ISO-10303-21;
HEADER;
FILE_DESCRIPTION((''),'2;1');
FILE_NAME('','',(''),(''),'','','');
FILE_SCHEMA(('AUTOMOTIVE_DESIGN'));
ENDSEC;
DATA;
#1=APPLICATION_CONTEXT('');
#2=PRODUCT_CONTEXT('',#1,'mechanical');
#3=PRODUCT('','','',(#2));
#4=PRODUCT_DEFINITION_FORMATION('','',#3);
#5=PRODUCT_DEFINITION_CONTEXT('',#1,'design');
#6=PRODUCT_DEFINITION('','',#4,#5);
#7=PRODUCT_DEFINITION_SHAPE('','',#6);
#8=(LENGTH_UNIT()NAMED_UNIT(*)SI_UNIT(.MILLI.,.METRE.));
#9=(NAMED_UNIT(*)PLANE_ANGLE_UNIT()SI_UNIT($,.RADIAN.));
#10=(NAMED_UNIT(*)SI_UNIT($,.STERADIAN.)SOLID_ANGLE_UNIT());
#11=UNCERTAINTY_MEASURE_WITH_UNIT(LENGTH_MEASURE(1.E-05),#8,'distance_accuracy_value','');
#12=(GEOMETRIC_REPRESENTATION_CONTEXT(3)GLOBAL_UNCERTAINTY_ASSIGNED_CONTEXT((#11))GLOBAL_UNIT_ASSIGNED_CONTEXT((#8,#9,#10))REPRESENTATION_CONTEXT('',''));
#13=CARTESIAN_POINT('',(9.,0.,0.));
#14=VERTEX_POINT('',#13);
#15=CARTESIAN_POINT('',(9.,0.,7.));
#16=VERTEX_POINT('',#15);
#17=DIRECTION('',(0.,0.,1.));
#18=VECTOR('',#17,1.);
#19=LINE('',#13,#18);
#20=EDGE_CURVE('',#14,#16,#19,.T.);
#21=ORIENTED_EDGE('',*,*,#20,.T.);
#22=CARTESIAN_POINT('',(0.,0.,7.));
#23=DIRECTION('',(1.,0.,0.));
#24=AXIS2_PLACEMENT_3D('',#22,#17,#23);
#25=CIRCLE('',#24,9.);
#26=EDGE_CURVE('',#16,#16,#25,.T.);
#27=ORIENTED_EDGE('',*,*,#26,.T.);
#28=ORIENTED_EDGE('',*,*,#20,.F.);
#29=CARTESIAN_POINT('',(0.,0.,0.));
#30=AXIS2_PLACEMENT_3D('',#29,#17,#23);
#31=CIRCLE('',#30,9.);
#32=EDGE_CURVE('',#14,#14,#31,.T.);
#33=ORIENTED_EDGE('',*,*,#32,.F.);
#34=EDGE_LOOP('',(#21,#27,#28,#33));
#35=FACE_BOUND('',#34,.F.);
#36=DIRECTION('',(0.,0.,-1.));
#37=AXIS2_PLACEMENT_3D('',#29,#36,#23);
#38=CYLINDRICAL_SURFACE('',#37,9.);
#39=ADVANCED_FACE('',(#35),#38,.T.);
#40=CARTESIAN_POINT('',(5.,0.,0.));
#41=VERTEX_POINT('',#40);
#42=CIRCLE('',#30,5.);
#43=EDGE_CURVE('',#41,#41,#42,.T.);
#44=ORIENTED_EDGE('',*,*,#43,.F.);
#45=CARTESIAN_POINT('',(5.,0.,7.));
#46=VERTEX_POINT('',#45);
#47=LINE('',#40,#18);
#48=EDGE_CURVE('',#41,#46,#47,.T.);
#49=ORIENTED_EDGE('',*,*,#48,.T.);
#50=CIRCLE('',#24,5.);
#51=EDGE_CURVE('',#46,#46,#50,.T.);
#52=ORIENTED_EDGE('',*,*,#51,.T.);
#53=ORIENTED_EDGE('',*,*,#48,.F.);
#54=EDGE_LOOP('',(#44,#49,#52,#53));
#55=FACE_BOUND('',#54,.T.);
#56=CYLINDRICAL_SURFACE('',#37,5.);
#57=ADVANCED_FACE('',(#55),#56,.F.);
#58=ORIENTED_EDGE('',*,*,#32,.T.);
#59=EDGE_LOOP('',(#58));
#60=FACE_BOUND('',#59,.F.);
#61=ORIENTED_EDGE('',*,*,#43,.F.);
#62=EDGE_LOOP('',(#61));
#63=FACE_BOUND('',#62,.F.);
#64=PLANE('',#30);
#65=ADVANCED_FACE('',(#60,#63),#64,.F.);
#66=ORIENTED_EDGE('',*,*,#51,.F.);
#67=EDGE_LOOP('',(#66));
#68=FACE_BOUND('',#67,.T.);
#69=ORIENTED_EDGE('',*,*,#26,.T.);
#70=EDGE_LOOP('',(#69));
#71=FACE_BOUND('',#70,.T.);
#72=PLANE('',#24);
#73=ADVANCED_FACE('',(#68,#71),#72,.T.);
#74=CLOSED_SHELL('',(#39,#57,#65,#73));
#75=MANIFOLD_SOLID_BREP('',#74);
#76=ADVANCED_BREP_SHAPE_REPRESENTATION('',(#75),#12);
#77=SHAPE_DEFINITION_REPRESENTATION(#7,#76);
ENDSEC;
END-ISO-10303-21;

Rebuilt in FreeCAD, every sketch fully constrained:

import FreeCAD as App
import Part
import Sketcher
from FreeCAD import Vector

doc = App.newDocument("Part")
body = doc.addObject("PartDesign::Body", "Body")

sketch1 = body.newObject("Sketcher::SketchObject", "Sketch")
sketch1.AttachmentSupport = (doc.getObject("XY_Plane"), [""])
sketch1.MapMode = "FlatFace"
sketch1.addGeometry([
    Part.Circle(Vector(0, 0, 0), Vector(0, 0, 1), 9),
    Part.Circle(Vector(0, 0, 0), Vector(0, 0, 1), 5),
], False)
sketch1.addConstraint([
    Sketcher.Constraint("Coincident", 0, 3, -1, 1),
    Sketcher.Constraint("Coincident", 1, 3, -1, 1),
    Sketcher.Constraint("Diameter", 0, 18.0),
    Sketcher.Constraint("Diameter", 1, 10.0),
])
pad1 = body.newObject("PartDesign::Pad", "Pad")
pad1.Profile = sketch1
pad1.Length = 7

doc.recompute()
